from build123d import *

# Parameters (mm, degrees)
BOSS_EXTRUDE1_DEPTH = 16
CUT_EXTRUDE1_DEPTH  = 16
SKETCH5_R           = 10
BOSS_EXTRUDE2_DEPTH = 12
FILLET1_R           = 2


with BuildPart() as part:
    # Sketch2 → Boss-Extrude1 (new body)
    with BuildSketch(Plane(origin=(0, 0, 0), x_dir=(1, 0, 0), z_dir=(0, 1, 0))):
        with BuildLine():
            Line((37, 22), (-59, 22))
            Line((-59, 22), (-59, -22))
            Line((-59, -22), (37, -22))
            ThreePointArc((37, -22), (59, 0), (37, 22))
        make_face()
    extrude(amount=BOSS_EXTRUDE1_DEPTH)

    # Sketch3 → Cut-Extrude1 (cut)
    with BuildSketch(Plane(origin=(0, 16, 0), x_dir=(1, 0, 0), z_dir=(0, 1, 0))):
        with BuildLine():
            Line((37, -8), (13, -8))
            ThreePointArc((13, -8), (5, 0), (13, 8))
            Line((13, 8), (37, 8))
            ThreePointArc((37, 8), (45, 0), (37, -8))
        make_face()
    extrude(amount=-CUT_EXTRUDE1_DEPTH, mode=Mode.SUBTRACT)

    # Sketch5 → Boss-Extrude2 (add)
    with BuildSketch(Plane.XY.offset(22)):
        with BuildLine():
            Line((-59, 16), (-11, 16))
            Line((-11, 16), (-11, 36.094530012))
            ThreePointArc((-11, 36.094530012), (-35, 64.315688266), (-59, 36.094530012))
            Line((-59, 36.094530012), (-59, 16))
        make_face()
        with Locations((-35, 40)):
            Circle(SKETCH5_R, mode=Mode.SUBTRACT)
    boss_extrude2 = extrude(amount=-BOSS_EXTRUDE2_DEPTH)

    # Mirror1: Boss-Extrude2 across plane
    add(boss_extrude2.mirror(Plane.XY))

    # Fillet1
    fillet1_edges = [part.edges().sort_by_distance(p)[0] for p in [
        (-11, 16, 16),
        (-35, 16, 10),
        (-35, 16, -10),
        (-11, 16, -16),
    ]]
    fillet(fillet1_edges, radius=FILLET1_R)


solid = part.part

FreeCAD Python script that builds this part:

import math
import FreeCAD as App
import Part
import Sketcher
Q = App.Units.Quantity


def edges_at(feature, points):
    """Names of the edges that pass closest to the given points."""
    edges = feature.Shape.Edges
    near = lambda p: min(range(len(edges)), key=lambda i: edges[i].distToShape(Part.Vertex(*p))[0])
    return sorted({f"Edge{near(p) + 1}" for p in points})

doc = App.newDocument("Part")
body = doc.addObject("PartDesign::Body", "Body")

sketch1 = doc.addObject("Sketcher::SketchObject", "Sketch")
body.addObject(sketch1)
sketch1.AttachmentSupport = (doc.XZ_Plane, [""])
sketch1.MapMode = "FlatFace"
sketch1.addGeometry(Part.LineSegment(App.Vector(37, -22, 0), App.Vector(-59, -22, 0)), False)
sketch1.addGeometry(Part.LineSegment(App.Vector(-59, -22, 0), App.Vector(-59, 22, 0)), False)
sketch1.addGeometry(Part.LineSegment(App.Vector(-59, 22, 0), App.Vector(37, 22, 0)), False)
sketch1.addGeometry(Part.ArcOfCircle(Part.Circle(App.Vector(37, 0, 0), App.Vector(0, 0, 1), 22), math.radians(-90), math.radians(90)), False)
sketch1.addConstraint(Sketcher.Constraint("Coincident", 0, 2, 1, 1))
sketch1.addConstraint(Sketcher.Constraint("Coincident", 1, 2, 2, 1))
sketch1.addConstraint(Sketcher.Constraint("Tangent", 2, 2, 3, 2))
sketch1.addConstraint(Sketcher.Constraint("Tangent", 3, 1, 0, 1))
sketch1.addConstraint(Sketcher.Constraint("Horizontal", 0))
sketch1.addConstraint(Sketcher.Constraint("Vertical", 1))
sketch1.addConstraint(Sketcher.Constraint("Horizontal", 2))
sketch1.addConstraint(Sketcher.Constraint("PointOnObject", 3, 3, -1))
sketch1.addConstraint(Sketcher.Constraint("Radius", 3, Q("22 mm")))
sketch1.addConstraint(Sketcher.Constraint("DistanceX", 0, 2, 0, 1, Q("96 mm")))
sketch1.addConstraint(Sketcher.Constraint("DistanceX", -1, 1, 3, 3, Q("37 mm")))
pad1 = doc.addObject("PartDesign::Pad", "Pad")
body.addObject(pad1)
pad1.Profile = sketch1
pad1.Length = 16
pad1.Reversed = True

sketch2 = doc.addObject("Sketcher::SketchObject", "Sketch001")
body.addObject(sketch2)
sketch2.AttachmentSupport = (doc.XZ_Plane, [""])
sketch2.MapMode = "FlatFace"
sketch2.AttachmentOffset = App.Placement(App.Vector(0, 0, -16), App.Rotation())
sketch2.addGeometry(Part.LineSegment(App.Vector(13, 8, 0), App.Vector(37, 8, 0)), False)
sketch2.addGeometry(Part.ArcOfCircle(Part.Circle(App.Vector(37, 0, 0), App.Vector(0, 0, 1), 8), math.radians(-90), math.radians(90)), False)
sketch2.addGeometry(Part.LineSegment(App.Vector(37, -8, 0), App.Vector(13, -8, 0)), False)
sketch2.addGeometry(Part.ArcOfCircle(Part.Circle(App.Vector(13, 0, 0), App.Vector(0, 0, 1), 8), math.radians(90), math.radians(270)), False)
sketch2.addConstraint(Sketcher.Constraint("Tangent", 0, 2, 1, 2))
sketch2.addConstraint(Sketcher.Constraint("Tangent", 1, 1, 2, 1))
sketch2.addConstraint(Sketcher.Constraint("Tangent", 2, 2, 3, 2))
sketch2.addConstraint(Sketcher.Constraint("Tangent", 3, 1, 0, 1))
sketch2.addConstraint(Sketcher.Constraint("Horizontal", 0))
sketch2.addConstraint(Sketcher.Constraint("Horizontal", 2))
sketch2.addConstraint(Sketcher.Constraint("PointOnObject", 1, 3, -1))
sketch2.addConstraint(Sketcher.Constraint("Radius", 1, Q("8 mm")))
sketch2.addConstraint(Sketcher.Constraint("DistanceX", 0, 1, 0, 2, Q("24 mm")))
sketch2.addConstraint(Sketcher.Constraint("DistanceX", -1, 1, 1, 3, Q("37 mm")))
pocket1 = doc.addObject("PartDesign::Pocket", "Pocket")
body.addObject(pocket1)
pocket1.Profile = sketch2
pocket1.Length = 16
pocket1.Reversed = True

sketch3 = doc.addObject("Sketcher::SketchObject", "Sketch002")
body.addObject(sketch3)
sketch3.AttachmentSupport = (doc.XY_Plane, [""])
sketch3.MapMode = "FlatFace"
sketch3.AttachmentOffset = App.Placement(App.Vector(0, 0, 22), App.Rotation())
sketch3.addGeometry(Part.LineSegment(App.Vector(-59, 16, 0), App.Vector(-11, 16, 0)), False)
sketch3.addGeometry(Part.LineSegment(App.Vector(-11, 16, 0), App.Vector(-11, 36, 0)), False)
sketch3.addGeometry(Part.ArcOfCircle(Part.Circle(App.Vector(-35, 40, 0), App.Vector(0, 0, 1), 24), math.radians(-9), math.radians(189)), False)
sketch3.addGeometry(Part.LineSegment(App.Vector(-59, 36, 0), App.Vector(-59, 16, 0)), False)
sketch3.addGeometry(Part.Circle(App.Vector(-35, 40, 0), App.Vector(0, 0, 1), 10), False)
sketch3.addConstraint(Sketcher.Constraint("Coincident", 0, 2, 1, 1))
sketch3.addConstraint(Sketcher.Constraint("Coincident", 1, 2, 2, 1))
sketch3.addConstraint(Sketcher.Constraint("Coincident", 2, 2, 3, 1))
sketch3.addConstraint(Sketcher.Constraint("Coincident", 3, 2, 0, 1))
sketch3.addConstraint(Sketcher.Constraint("Horizontal", 0))
sketch3.addConstraint(Sketcher.Constraint("Vertical", 1))
sketch3.addConstraint(Sketcher.Constraint("Vertical", 3))
sketch3.addConstraint(Sketcher.Constraint("Coincident", 4, 3, 2, 3))
sketch3.addConstraint(Sketcher.Constraint("Horizontal", 1, 2, 2, 2))
sketch3.addConstraint(Sketcher.Constraint("Diameter", 4, Q("20 mm")))
sketch3.addConstraint(Sketcher.Constraint("DistanceX", 0, 1, 0, 2, Q("48 mm")))
sketch3.addConstraint(Sketcher.Constraint("DistanceX", 2, 3, -1, 1, Q("35 mm")))
sketch3.addConstraint(Sketcher.Constraint("DistanceY", -1, 1, 2, 3, Q("40 mm")))
sketch3.addConstraint(Sketcher.Constraint("DistanceY", -1, 1, 0, 2, Q("16 mm")))
sketch3.addConstraint(Sketcher.Constraint("Radius", 2, Q("24.315688 mm")))
pad2 = doc.addObject("PartDesign::Pad", "Pad001")
body.addObject(pad2)
pad2.Profile = sketch3
pad2.Length = 12
pad2.Reversed = True
doc.recompute()

mirrored = doc.addObject("PartDesign::Mirrored", "Mirrored")
body.addObject(mirrored)
mirrored.Originals = [pad2]
mirrored.MirrorPlane = (doc.XY_Plane, [""])
body.Tip = mirrored
doc.recompute()

fillet = doc.addObject("PartDesign::Fillet", "Fillet")
body.addObject(fillet)
fillet.Base = (mirrored, edges_at(mirrored, [
    (-11, 16, 16),
    (-35, 16, 10),
    (-35, 16, -10),
    (-11, 16, -16),
]))
fillet.Radius = 2

doc.recompute()
